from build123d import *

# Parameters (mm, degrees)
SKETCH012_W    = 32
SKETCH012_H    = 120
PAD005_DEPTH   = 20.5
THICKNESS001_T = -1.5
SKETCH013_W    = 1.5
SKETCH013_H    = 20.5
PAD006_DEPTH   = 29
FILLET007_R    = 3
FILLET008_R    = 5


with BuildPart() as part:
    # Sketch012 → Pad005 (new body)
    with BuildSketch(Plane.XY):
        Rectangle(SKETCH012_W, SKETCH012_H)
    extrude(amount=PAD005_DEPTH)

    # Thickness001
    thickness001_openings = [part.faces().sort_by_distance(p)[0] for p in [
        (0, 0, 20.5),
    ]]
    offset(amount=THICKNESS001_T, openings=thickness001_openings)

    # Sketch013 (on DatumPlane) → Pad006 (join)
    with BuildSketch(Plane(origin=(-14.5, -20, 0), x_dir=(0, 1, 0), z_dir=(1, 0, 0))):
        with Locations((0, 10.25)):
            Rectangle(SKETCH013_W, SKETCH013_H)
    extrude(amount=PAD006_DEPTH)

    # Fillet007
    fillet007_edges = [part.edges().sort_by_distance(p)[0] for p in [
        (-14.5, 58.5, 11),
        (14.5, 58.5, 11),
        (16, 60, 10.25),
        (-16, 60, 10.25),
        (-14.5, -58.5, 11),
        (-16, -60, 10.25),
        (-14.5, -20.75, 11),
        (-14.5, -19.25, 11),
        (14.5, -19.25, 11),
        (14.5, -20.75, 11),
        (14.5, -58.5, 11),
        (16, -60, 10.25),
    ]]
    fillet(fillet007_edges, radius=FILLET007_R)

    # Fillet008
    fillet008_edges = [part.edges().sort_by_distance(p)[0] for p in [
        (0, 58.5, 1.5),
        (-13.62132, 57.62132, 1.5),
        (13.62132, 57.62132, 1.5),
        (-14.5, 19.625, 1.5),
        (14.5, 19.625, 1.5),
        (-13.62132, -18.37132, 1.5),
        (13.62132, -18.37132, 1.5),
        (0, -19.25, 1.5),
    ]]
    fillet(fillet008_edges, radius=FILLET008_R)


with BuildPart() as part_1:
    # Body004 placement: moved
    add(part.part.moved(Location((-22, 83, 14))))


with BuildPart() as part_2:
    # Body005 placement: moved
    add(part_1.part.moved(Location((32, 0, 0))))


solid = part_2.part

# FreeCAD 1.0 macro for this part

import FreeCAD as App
import Part
import Sketcher


def edges_at(feature, points):
    """Names of the edges that pass closest to the given points."""
    edges = feature.Shape.Edges
    near = lambda p: min(range(len(edges)), key=lambda i: edges[i].distToShape(Part.Vertex(*p))[0])
    return sorted({f"Edge{near(p) + 1}" for p in points})


def faces_at(feature, points):
    """Names of the faces that lie closest to the given points."""
    faces = feature.Shape.Faces
    near = lambda p: min(range(len(faces)), key=lambda i: faces[i].distToShape(Part.Vertex(*p))[0])
    return sorted({f"Face{near(p) + 1}" for p in points})

doc = App.newDocument("Part")
params = doc.addObject("Spreadsheet::Sheet", "Params")
for row, (alias, value) in enumerate([
    ("sketch1_width", "32 mm"),
    ("sketch1_height", "120 mm"),
    ("pad1_length", "20.5 mm"),
    ("thickness_wall", "1.5 mm"),
    ("sketch2_width", "1.5 mm"),
    ("sketch2_height", "20.5 mm"),
    ("pad2_length", "29 mm"),
    ("fillet_radius", "3 mm"),
    ("fillet2_radius", "5 mm"),
], start=1):
    params.set(f"A{row}", alias)
    params.set(f"B{row}", "=" + value)
    params.setAlias(f"B{row}", alias)

body = doc.addObject("PartDesign::Body", "Body")

# Sketch on XY plane
sketch1 = body.newObject("Sketcher::SketchObject", "Sketch")
sketch1.AttachmentSupport = (doc.getObject("XY_Plane"), [""])
sketch1.MapMode = "FlatFace"
sketch1.addGeometry([
    Part.LineSegment(App.Vector(-16, 60, 0), App.Vector(-16, -60, 0)),
    Part.LineSegment(App.Vector(-16, -60, 0), App.Vector(16, -60, 0)),
    Part.LineSegment(App.Vector(16, -60, 0), App.Vector(16, 60, 0)),
    Part.LineSegment(App.Vector(16, 60, 0), App.Vector(-16, 60, 0)),
], False)
sketch1.addConstraint([
    Sketcher.Constraint("Coincident", 0, 2, 1, 1),
    Sketcher.Constraint("Coincident", 1, 2, 2, 1),
    Sketcher.Constraint("Coincident", 2, 2, 3, 1),
    Sketcher.Constraint("Coincident", 3, 2, 0, 1),
    Sketcher.Constraint("Vertical", 0),
    Sketcher.Constraint("Horizontal", 1),
    Sketcher.Constraint("Vertical", 2),
    Sketcher.Constraint("Horizontal", 3),
    Sketcher.Constraint("Symmetric", 0, 2, 2, 2, -1, 1),
    Sketcher.Constraint("DistanceX", 1, 1, 1, 2, 32.0),
    Sketcher.Constraint("DistanceY", 0, 2, 0, 1, 120.0),
])
sketch1.setExpression("Constraints[9]", "Params.sketch1_width")
sketch1.setExpression("Constraints[10]", "Params.sketch1_height")
pad1 = body.newObject("PartDesign::Pad", "Pad")
pad1.Profile = sketch1
pad1.setExpression("Length", "Params.pad1_length")
doc.recompute()

thickness = body.newObject("PartDesign::Thickness", "Thickness")
thickness.Base = (pad1, faces_at(pad1, [(0, 0, 20.5)]))
thickness.setExpression("Value", "Params.thickness_wall")
thickness.Reversed = True
thickness.Join = "Arc"

# Sketch on YZ plane
sketch2 = body.newObject("Sketcher::SketchObject", "Sketch001")
sketch2.AttachmentSupport = (doc.getObject("YZ_Plane"), [""])
sketch2.MapMode = "FlatFace"
sketch2.AttachmentOffset = App.Placement(App.Vector(0, 0, -14.5), App.Rotation())
sketch2.addGeometry([
    Part.LineSegment(App.Vector(-20.75, 20.5, 0), App.Vector(-20.75, 0, 0)),
    Part.LineSegment(App.Vector(-20.75, 0, 0), App.Vector(-19.25, 0, 0)),
    Part.LineSegment(App.Vector(-19.25, 0, 0), App.Vector(-19.25, 20.5, 0)),
    Part.LineSegment(App.Vector(-19.25, 20.5, 0), App.Vector(-20.75, 20.5, 0)),
], False)
sketch2.addConstraint([
    Sketcher.Constraint("Coincident", 0, 2, 1, 1),
    Sketcher.Constraint("Coincident", 1, 2, 2, 1),
    Sketcher.Constraint("Coincident", 2, 2, 3, 1),
    Sketcher.Constraint("Coincident", 3, 2, 0, 1),
    Sketcher.Constraint("Vertical", 0),
    Sketcher.Constraint("Horizontal", 1),
    Sketcher.Constraint("Vertical", 2),
    Sketcher.Constraint("Horizontal", 3),
    Sketcher.Constraint("PointOnObject", 0, 2, -1),
    Sketcher.Constraint("DistanceX", 1, 1, 1, 2, 1.5),
    Sketcher.Constraint("DistanceY", 0, 2, 0, 1, 20.5),
    Sketcher.Constraint("DistanceX", 0, 2, -1, 1, 20.75),
])
sketch2.setExpression("Constraints[9]", "Params.sketch2_width")
sketch2.setExpression("Constraints[10]", "Params.sketch2_height")
pad2 = body.newObject("PartDesign::Pad", "Pad001")
pad2.Profile = sketch2
pad2.setExpression("Length", "Params.pad2_length")
doc.recompute()

fillet = body.newObject("PartDesign::Fillet", "Fillet")
fillet.Base = (pad2, edges_at(pad2, [
    (-14.5, 58.5, 11),
    (14.5, 58.5, 11),
    (16, 60, 10.25),
    (-16, 60, 10.25),
    (-14.5, -58.5, 11),
    (-16, -60, 10.25),
    (-14.5, -20.75, 11),
    (-14.5, -19.25, 11),
    (14.5, -19.25, 11),
    (14.5, -20.75, 11),
    (14.5, -58.5, 11),
    (16, -60, 10.25),
]))
fillet.setExpression("Radius", "Params.fillet_radius")
doc.recompute()

fillet2 = body.newObject("PartDesign::Fillet", "Fillet001")
fillet2.Base = (fillet, edges_at(fillet, [
    (0, 58.5, 1.5),
    (-13.621, 57.621, 1.5),
    (13.621, 57.621, 1.5),
    (-14.5, 19.625, 1.5),
    (14.5, 19.625, 1.5),
    (-13.621, -18.371, 1.5),
    (13.621, -18.371, 1.5),
    (0, -19.25, 1.5),
]))
fillet2.setExpression("Radius", "Params.fillet2_radius")
body2 = doc.addObject("PartDesign::Body", "Body001")
doc.recompute()

body.Placement = App.Placement(App.Vector(-22, 83, 14), App.Rotation(App.Vector(0, 0, 1), 0))
boolean = body2.newObject("PartDesign::Boolean", "Boolean")
boolean.Type = "Fuse"
boolean.addObjects([body])
body3 = doc.addObject("PartDesign::Body", "Body002")
doc.recompute()

body2.Placement = App.Placement(App.Vector(32, 0, 0), App.Rotation(App.Vector(0, 0, 1), 0))
boolean2 = body3.newObject("PartDesign::Boolean", "Boolean001")
boolean2.Type = "Fuse"
boolean2.addObjects([body2])

doc.recompute()
